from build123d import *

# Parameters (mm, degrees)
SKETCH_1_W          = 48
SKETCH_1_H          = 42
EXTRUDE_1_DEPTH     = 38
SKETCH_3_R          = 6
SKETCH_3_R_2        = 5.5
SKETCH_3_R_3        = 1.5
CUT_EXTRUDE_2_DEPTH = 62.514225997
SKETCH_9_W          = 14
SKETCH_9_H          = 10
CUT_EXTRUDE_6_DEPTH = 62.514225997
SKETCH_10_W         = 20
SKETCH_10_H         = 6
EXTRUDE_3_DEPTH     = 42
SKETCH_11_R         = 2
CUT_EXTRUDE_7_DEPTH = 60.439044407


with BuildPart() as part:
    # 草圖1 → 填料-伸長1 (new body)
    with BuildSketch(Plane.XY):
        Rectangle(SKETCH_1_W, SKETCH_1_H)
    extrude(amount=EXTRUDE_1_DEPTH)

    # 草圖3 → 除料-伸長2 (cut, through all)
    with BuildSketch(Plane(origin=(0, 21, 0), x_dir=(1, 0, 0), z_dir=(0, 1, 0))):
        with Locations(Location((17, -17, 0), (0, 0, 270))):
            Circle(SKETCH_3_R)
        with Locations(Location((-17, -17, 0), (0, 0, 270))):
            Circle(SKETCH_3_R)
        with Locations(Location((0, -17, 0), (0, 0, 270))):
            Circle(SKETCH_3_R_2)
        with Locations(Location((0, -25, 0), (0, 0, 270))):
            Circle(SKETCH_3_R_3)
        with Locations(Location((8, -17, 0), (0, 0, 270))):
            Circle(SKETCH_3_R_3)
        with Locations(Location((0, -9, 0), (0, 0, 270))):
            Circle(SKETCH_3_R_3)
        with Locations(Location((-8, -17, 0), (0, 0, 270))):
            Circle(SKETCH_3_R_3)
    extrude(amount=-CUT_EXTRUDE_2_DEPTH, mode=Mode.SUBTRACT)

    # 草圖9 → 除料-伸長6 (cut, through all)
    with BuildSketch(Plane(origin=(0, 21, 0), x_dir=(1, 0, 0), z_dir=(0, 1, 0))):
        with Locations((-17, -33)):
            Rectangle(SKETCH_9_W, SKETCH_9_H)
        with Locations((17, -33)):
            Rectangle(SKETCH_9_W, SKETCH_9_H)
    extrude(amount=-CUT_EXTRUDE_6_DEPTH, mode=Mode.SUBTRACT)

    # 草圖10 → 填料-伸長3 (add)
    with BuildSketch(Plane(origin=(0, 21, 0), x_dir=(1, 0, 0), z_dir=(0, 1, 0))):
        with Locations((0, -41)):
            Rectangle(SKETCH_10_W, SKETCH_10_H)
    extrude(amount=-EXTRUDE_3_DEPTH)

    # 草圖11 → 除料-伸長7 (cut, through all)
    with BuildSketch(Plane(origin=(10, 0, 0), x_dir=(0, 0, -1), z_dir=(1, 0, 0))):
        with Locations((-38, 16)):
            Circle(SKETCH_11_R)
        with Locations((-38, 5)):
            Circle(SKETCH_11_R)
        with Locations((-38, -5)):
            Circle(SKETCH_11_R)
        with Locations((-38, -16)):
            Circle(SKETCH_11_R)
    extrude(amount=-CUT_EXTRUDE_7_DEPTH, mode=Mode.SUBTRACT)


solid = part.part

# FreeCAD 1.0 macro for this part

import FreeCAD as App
import Part
import Sketcher

V = App.Vector

doc = App.newDocument("Part")
params = doc.addObject("Spreadsheet::Sheet", "Params")
for row, (alias, value) in enumerate([
    ("sketch1_width", "48 mm"),
    ("sketch1_height", "42 mm"),
    ("pad1_length", "38 mm"),
    ("sketch2_diameter", "12 mm"),
    ("sketch2_diameter2", "11 mm"),
    ("sketch2_diameter3", "3 mm"),
    ("sketch3_width", "14 mm"),
    ("sketch3_height", "10 mm"),
    ("sketch4_width", "20 mm"),
    ("sketch4_height", "6 mm"),
    ("pad2_length", "42 mm"),
    ("sketch5_diameter", "4 mm"),
], start=1):
    params.set(f"A{row}", alias)
    params.set(f"B{row}", "=" + value)
    params.setAlias(f"B{row}", alias)

body = doc.addObject("PartDesign::Body", "Body")

# Sketch on XY plane
sketch1 = doc.addObject("Sketcher::SketchObject", "Sketch")
body.addObject(sketch1)
sketch1.AttachmentSupport = (doc.XY_Plane, [""])
sketch1.MapMode = "FlatFace"
sketch1.addGeometry(Part.LineSegment(V(-24, 21, 0), V(-24, -21, 0)), False)
sketch1.addGeometry(Part.LineSegment(V(-24, -21, 0), V(24, -21, 0)), False)
sketch1.addGeometry(Part.LineSegment(V(24, -21, 0), V(24, 21, 0)), False)
sketch1.addGeometry(Part.LineSegment(V(24, 21, 0), V(-24, 21, 0)), False)
sketch1.addConstraint(Sketcher.Constraint("Coincident", 0, 2, 1, 1))
sketch1.addConstraint(Sketcher.Constraint("Coincident", 1, 2, 2, 1))
sketch1.addConstraint(Sketcher.Constraint("Coincident", 2, 2, 3, 1))
sketch1.addConstraint(Sketcher.Constraint("Coincident", 3, 2, 0, 1))
sketch1.addConstraint(Sketcher.Constraint("Vertical", 0))
sketch1.addConstraint(Sketcher.Constraint("Horizontal", 1))
sketch1.addConstraint(Sketcher.Constraint("Vertical", 2))
sketch1.addConstraint(Sketcher.Constraint("Horizontal", 3))
sketch1.addConstraint(Sketcher.Constraint("Symmetric", 0, 2, 2, 2, -1, 1))
sketch1.addConstraint(Sketcher.Constraint("DistanceX", 1, 1, 1, 2, 48.0))
sketch1.addConstraint(Sketcher.Constraint("DistanceY", 0, 2, 0, 1, 42.0))
sketch1.setExpression("Constraints[9]", "Params.sketch1_width")
sketch1.setExpression("Constraints[10]", "Params.sketch1_height")
pad1 = doc.addObject("PartDesign::Pad", "Pad")
body.addObject(pad1)
pad1.Profile = sketch1
pad1.setExpression("Length", "Params.pad1_length")

# Sketch on XZ plane
sketch2 = doc.addObject("Sketcher::SketchObject", "Sketch001")
body.addObject(sketch2)
sketch2.AttachmentSupport = (doc.XZ_Plane, [""])
sketch2.MapMode = "FlatFace"
sketch2.AttachmentOffset = App.Placement(V(0, 0, -21), App.Rotation())
sketch2.addGeometry(Part.Circle(V(17, 17, 0), V(0, 0, 1), 6), False)
sketch2.addGeometry(Part.Circle(V(-17, 17, 0), V(0, 0, 1), 6), False)
sketch2.addGeometry(Part.Circle(V(0, 17, 0), V(0, 0, 1), 5.5), False)
sketch2.addGeometry(Part.Circle(V(0, 25, 0), V(0, 0, 1), 1.5), False)
sketch2.addGeometry(Part.Circle(V(8, 17, 0), V(0, 0, 1), 1.5), False)
sketch2.addGeometry(Part.Circle(V(0, 9, 0), V(0, 0, 1), 1.5), False)
sketch2.addGeometry(Part.Circle(V(-8, 17, 0), V(0, 0, 1), 1.5), False)
sketch2.addConstraint(Sketcher.Constraint("Equal", 0, 1))
sketch2.addConstraint(Sketcher.Constraint("Equal", 3, 4))
sketch2.addConstraint(Sketcher.Constraint("Equal", 4, 5))
sketch2.addConstraint(Sketcher.Constraint("Equal", 5, 6))
sketch2.addConstraint(Sketcher.Constraint("Symmetric", 0, 3, 1, 3, -2))
sketch2.addConstraint(Sketcher.Constraint("Symmetric", 4, 3, 6, 3, -2))
sketch2.addConstraint(Sketcher.Constraint("PointOnObject", 2, 3, -2))
sketch2.addConstraint(Sketcher.Constraint("PointOnObject", 3, 3, -2))
sketch2.addConstraint(Sketcher.Constraint("PointOnObject", 5, 3, -2))
sketch2.addConstraint(Sketcher.Constraint("Horizontal", 1, 3, 2, 3))
sketch2.addConstraint(Sketcher.Constraint("Horizontal", 2, 3, 4, 3))
sketch2.addConstraint(Sketcher.Constraint("Diameter", 0, 12.0))
sketch2.addConstraint(Sketcher.Constraint("Diameter", 2, 11.0))
sketch2.addConstraint(Sketcher.Constraint("Diameter", 3, 3.0))
sketch2.addConstraint(Sketcher.Constraint("DistanceX", -1, 1, 0, 3, 17.0))
sketch2.addConstraint(Sketcher.Constraint("DistanceY", -1, 1, 0, 3, 17.0))
sketch2.addConstraint(Sketcher.Constraint("DistanceY", -1, 1, 3, 3, 25.0))
sketch2.addConstraint(Sketcher.Constraint("DistanceX", -1, 1, 4, 3, 8.0))
sketch2.addConstraint(Sketcher.Constraint("DistanceY", -1, 1, 5, 3, 9.0))
sketch2.setExpression("Constraints[11]", "Params.sketch2_diameter")
sketch2.setExpression("Constraints[12]", "Params.sketch2_diameter2")
sketch2.setExpression("Constraints[13]", "Params.sketch2_diameter3")
pocket1 = doc.addObject("PartDesign::Pocket", "Pocket")
body.addObject(pocket1)
pocket1.Profile = sketch2
pocket1.Type = "ThroughAll"
pocket1.Reversed = True

# Sketch on XZ plane
sketch3 = doc.addObject("Sketcher::SketchObject", "Sketch002")
body.addObject(sketch3)
sketch3.AttachmentSupport = (doc.XZ_Plane, [""])
sketch3.MapMode = "FlatFace"
sketch3.AttachmentOffset = App.Placement(V(0, 0, -21), App.Rotation())
sketch3.addGeometry(Part.LineSegment(V(-24, 28, 0), V(-24, 38, 0)), False)
sketch3.addGeometry(Part.LineSegment(V(-24, 38, 0), V(-10, 38, 0)), False)
sketch3.addGeometry(Part.LineSegment(V(-10, 38, 0), V(-10, 28, 0)), False)
sketch3.addGeometry(Part.LineSegment(V(-10, 28, 0), V(-24, 28, 0)), False)
sketch3.addGeometry(Part.LineSegment(V(10, 28, 0), V(10, 38, 0)), False)
sketch3.addGeometry(Part.LineSegment(V(10, 38, 0), V(24, 38, 0)), False)
sketch3.addGeometry(Part.LineSegment(V(24, 38, 0), V(24, 28, 0)), False)
sketch3.addGeometry(Part.LineSegment(V(24, 28, 0), V(10, 28, 0)), False)
sketch3.addConstraint(Sketcher.Constraint("Coincident", 0, 2, 1, 1))
sketch3.addConstraint(Sketcher.Constraint("Coincident", 1, 2, 2, 1))
sketch3.addConstraint(Sketcher.Constraint("Coincident", 2, 2, 3, 1))
sketch3.addConstraint(Sketcher.Constraint("Coincident", 3, 2, 0, 1))
sketch3.addConstraint(Sketcher.Constraint("Coincident", 4, 2, 5, 1))
sketch3.addConstraint(Sketcher.Constraint("Coincident", 5, 2, 6, 1))
sketch3.addConstraint(Sketcher.Constraint("Coincident", 6, 2, 7, 1))
sketch3.addConstraint(Sketcher.Constraint("Coincident", 7, 2, 4, 1))
sketch3.addConstraint(Sketcher.Constraint("Vertical", 0))
sketch3.addConstraint(Sketcher.Constraint("Horizontal", 1))
sketch3.addConstraint(Sketcher.Constraint("Vertical", 2))
sketch3.addConstraint(Sketcher.Constraint("Horizontal", 3))
sketch3.addConstraint(Sketcher.Constraint("Vertical", 4))
sketch3.addConstraint(Sketcher.Constraint("Horizontal", 5))
sketch3.addConstraint(Sketcher.Constraint("Vertical", 6))
sketch3.addConstraint(Sketcher.Constraint("Horizontal", 7))
sketch3.addConstraint(Sketcher.Constraint("Symmetric", 1, 2, 4, 2, -2))
sketch3.addConstraint(Sketcher.Constraint("Symmetric", 3, 2, 6, 2, -2))
sketch3.addConstraint(Sketcher.Constraint("DistanceX", 1, 1, 1, 2, 14.0))
sketch3.addConstraint(Sketcher.Constraint("DistanceY", 0, 1, 0, 2, 10.0))
sketch3.addConstraint(Sketcher.Constraint("DistanceX", 0, 2, -1, 1, 24.0))
sketch3.addConstraint(Sketcher.Constraint("DistanceY", -1, 1, 0, 2, 38.0))
sketch3.setExpression("Constraints[18]", "Params.sketch3_width")
sketch3.setExpression("Constraints[19]", "Params.sketch3_height")
pocket2 = doc.addObject("PartDesign::Pocket", "Pocket001")
body.addObject(pocket2)
pocket2.Profile = sketch3
pocket2.Type = "ThroughAll"
pocket2.Reversed = True

# Sketch on XZ plane
sketch4 = doc.addObject("Sketcher::SketchObject", "Sketch003")
body.addObject(sketch4)
sketch4.AttachmentSupport = (doc.XZ_Plane, [""])
sketch4.MapMode = "FlatFace"
sketch4.AttachmentOffset = App.Placement(V(0, 0, -21), App.Rotation())
sketch4.addGeometry(Part.LineSegment(V(-10, 38, 0), V(-10, 44, 0)), False)
sketch4.addGeometry(Part.LineSegment(V(-10, 44, 0), V(10, 44, 0)), False)
sketch4.addGeometry(Part.LineSegment(V(10, 44, 0), V(10, 38, 0)), False)
sketch4.addGeometry(Part.LineSegment(V(10, 38, 0), V(-10, 38, 0)), False)
sketch4.addConstraint(Sketcher.Constraint("Coincident", 0, 2, 1, 1))
sketch4.addConstraint(Sketcher.Constraint("Coincident", 1, 2, 2, 1))
sketch4.addConstraint(Sketcher.Constraint("Coincident", 2, 2, 3, 1))
sketch4.addConstraint(Sketcher.Constraint("Coincident", 3, 2, 0, 1))
sketch4.addConstraint(Sketcher.Constraint("Vertical", 0))
sketch4.addConstraint(Sketcher.Constraint("Horizontal", 1))
sketch4.addConstraint(Sketcher.Constraint("Vertical", 2))
sketch4.addConstraint(Sketcher.Constraint("Horizontal", 3))
sketch4.addConstraint(Sketcher.Constraint("DistanceX", 1, 1, 1, 2, 20.0))
sketch4.addConstraint(Sketcher.Constraint("DistanceY", 0, 1, 0, 2, 6.0))
sketch4.addConstraint(Sketcher.Constraint("DistanceX", 0, 2, -1, 1, 10.0))
sketch4.addConstraint(Sketcher.Constraint("DistanceY", -1, 1, 0, 2, 44.0))
sketch4.setExpression("Constraints[8]", "Params.sketch4_width")
sketch4.setExpression("Constraints[9]", "Params.sketch4_height")
pad2 = doc.addObject("PartDesign::Pad", "Pad001")
body.addObject(pad2)
pad2.Profile = sketch4
pad2.setExpression("Length", "Params.pad2_length")

# Sketch on YZ plane
sketch5 = doc.addObject("Sketcher::SketchObject", "Sketch004")
body.addObject(sketch5)
sketch5.AttachmentSupport = (doc.YZ_Plane, [""])
sketch5.MapMode = "FlatFace"
sketch5.AttachmentOffset = App.Placement(V(0, 0, 10), App.Rotation())
sketch5.addGeometry(Part.Circle(V(16, 38, 0), V(0, 0, 1), 2), False)
sketch5.addGeometry(Part.Circle(V(5, 38, 0), V(0, 0, 1), 2), False)
sketch5.addGeometry(Part.Circle(V(-5, 38, 0), V(0, 0, 1), 2), False)
sketch5.addGeometry(Part.Circle(V(-16, 38, 0), V(0, 0, 1), 2), False)
sketch5.addConstraint(Sketcher.Constraint("Equal", 0, 1))
sketch5.addConstraint(Sketcher.Constraint("Equal", 1, 2))
sketch5.addConstraint(Sketcher.Constraint("Equal", 2, 3))
sketch5.addConstraint(Sketcher.Constraint("Symmetric", 1, 3, 2, 3, -2))
sketch5.addConstraint(Sketcher.Constraint("Symmetric", 0, 3, 3, 3, -2))
sketch5.addConstraint(Sketcher.Constraint("Horizontal", 0, 3, 1, 3))
sketch5.addConstraint(Sketcher.Constraint("Diameter", 0, 4.0))
sketch5.addConstraint(Sketcher.Constraint("DistanceX", -1, 1, 0, 3, 16.0))
sketch5.addConstraint(Sketcher.Constraint("DistanceY", -1, 1, 0, 3, 38.0))
sketch5.addConstraint(Sketcher.Constraint("DistanceX", -1, 1, 1, 3, 5.0))
sketch5.setExpression("Constraints[6]", "Params.sketch5_diameter")
pocket3 = doc.addObject("PartDesign::Pocket", "Pocket002")
body.addObject(pocket3)
pocket3.Profile = sketch5
pocket3.Type = "ThroughAll"

doc.recompute()
